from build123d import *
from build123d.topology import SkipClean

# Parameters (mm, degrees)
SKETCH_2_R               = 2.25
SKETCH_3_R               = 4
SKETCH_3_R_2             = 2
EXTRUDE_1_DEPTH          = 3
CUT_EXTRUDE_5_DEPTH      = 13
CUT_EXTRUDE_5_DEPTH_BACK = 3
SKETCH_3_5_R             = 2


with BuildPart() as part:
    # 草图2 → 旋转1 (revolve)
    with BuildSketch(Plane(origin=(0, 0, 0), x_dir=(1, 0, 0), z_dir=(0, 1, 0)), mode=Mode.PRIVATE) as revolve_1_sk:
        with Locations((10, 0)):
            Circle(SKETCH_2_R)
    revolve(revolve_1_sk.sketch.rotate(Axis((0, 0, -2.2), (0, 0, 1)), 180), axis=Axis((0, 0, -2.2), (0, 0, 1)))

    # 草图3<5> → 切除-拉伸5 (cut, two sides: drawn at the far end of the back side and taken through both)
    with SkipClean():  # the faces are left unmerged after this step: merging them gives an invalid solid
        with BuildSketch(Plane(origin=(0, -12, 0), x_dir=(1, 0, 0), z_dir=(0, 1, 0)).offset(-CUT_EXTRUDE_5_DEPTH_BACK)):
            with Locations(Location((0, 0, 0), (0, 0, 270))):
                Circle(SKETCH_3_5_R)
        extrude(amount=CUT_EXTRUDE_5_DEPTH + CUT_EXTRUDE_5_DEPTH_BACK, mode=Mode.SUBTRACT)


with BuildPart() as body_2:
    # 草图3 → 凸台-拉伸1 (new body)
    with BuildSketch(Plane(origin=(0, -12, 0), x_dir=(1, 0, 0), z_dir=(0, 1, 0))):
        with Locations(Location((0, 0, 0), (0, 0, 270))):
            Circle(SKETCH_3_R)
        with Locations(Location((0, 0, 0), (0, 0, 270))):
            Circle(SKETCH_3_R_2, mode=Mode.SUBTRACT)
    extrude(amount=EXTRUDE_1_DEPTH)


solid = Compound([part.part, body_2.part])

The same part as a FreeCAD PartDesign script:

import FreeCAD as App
import Part
import Sketcher

V = App.Vector

doc = App.newDocument("Part")
body = doc.addObject("PartDesign::Body", "Body")

# Sketch on XZ plane
sketch1 = doc.addObject("Sketcher::SketchObject", "Sketch")
body.addObject(sketch1)
sketch1.AttachmentSupport = (doc.XZ_Plane, [""])
sketch1.MapMode = "FlatFace"
sketch1.addGeometry(Part.Circle(V(10, 0, 0), V(0, 0, 1), 2.2), False)
sketch1.addConstraint(Sketcher.Constraint("PointOnObject", 0, 3, -1))
sketch1.addConstraint(Sketcher.Constraint("Diameter", 0, 4.5))
sketch1.addConstraint(Sketcher.Constraint("DistanceX", -1, 1, 0, 3, 10.0))
revolution = doc.addObject("PartDesign::Revolution", "Revolution")
body.addObject(revolution)
revolution.Profile = sketch1
revolution.ReferenceAxis = (sketch1, ["V_Axis"])
revolution.Angle = 360

# Sketch on XZ plane
sketch2 = doc.addObject("Sketcher::SketchObject", "Sketch001")
body.addObject(sketch2)
sketch2.AttachmentSupport = (doc.XZ_Plane, [""])
sketch2.MapMode = "FlatFace"
sketch2.AttachmentOffset = App.Placement(V(0, 0, 12), App.Rotation())
sketch2.addGeometry(Part.Circle(V(0, 0, 0), V(0, 0, 1), 2), False)
sketch2.addConstraint(Sketcher.Constraint("Coincident", 0, 3, -1, 1))
sketch2.addConstraint(Sketcher.Constraint("Diameter", 0, 4.0))
pocket1 = doc.addObject("PartDesign::Pocket", "Pocket")
body.addObject(pocket1)
pocket1.Profile = sketch2
pocket1.Type = "TwoLengths"
pocket1.Length = 13
pocket1.Length2 = 3
body2 = doc.addObject("PartDesign::Body", "Body001")

# Sketch on XZ plane
sketch3 = doc.addObject("Sketcher::SketchObject", "Sketch002")
body2.addObject(sketch3)
sketch3.AttachmentSupport = (doc.getObject("XZ_Plane001"), [""])
sketch3.MapMode = "FlatFace"
sketch3.AttachmentOffset = App.Placement(V(0, 0, 12), App.Rotation())
sketch3.addGeometry(Part.Circle(V(0, 0, 0), V(0, 0, 1), 4), False)
sketch3.addGeometry(Part.Circle(V(0, 0, 0), V(0, 0, 1), 2), False)
sketch3.addConstraint(Sketcher.Constraint("Coincident", 0, 3, -1, 1))
sketch3.addConstraint(Sketcher.Constraint("Coincident", 1, 3, -1, 1))
sketch3.addConstraint(Sketcher.Constraint("Diameter", 0, 8.0))
sketch3.addConstraint(Sketcher.Constraint("Diameter", 1, 4.0))
pad1 = doc.addObject("PartDesign::Pad", "Pad")
body2.addObject(pad1)
pad1.Profile = sketch3
pad1.Length = 3
pad1.Reversed = True

doc.recompute()
